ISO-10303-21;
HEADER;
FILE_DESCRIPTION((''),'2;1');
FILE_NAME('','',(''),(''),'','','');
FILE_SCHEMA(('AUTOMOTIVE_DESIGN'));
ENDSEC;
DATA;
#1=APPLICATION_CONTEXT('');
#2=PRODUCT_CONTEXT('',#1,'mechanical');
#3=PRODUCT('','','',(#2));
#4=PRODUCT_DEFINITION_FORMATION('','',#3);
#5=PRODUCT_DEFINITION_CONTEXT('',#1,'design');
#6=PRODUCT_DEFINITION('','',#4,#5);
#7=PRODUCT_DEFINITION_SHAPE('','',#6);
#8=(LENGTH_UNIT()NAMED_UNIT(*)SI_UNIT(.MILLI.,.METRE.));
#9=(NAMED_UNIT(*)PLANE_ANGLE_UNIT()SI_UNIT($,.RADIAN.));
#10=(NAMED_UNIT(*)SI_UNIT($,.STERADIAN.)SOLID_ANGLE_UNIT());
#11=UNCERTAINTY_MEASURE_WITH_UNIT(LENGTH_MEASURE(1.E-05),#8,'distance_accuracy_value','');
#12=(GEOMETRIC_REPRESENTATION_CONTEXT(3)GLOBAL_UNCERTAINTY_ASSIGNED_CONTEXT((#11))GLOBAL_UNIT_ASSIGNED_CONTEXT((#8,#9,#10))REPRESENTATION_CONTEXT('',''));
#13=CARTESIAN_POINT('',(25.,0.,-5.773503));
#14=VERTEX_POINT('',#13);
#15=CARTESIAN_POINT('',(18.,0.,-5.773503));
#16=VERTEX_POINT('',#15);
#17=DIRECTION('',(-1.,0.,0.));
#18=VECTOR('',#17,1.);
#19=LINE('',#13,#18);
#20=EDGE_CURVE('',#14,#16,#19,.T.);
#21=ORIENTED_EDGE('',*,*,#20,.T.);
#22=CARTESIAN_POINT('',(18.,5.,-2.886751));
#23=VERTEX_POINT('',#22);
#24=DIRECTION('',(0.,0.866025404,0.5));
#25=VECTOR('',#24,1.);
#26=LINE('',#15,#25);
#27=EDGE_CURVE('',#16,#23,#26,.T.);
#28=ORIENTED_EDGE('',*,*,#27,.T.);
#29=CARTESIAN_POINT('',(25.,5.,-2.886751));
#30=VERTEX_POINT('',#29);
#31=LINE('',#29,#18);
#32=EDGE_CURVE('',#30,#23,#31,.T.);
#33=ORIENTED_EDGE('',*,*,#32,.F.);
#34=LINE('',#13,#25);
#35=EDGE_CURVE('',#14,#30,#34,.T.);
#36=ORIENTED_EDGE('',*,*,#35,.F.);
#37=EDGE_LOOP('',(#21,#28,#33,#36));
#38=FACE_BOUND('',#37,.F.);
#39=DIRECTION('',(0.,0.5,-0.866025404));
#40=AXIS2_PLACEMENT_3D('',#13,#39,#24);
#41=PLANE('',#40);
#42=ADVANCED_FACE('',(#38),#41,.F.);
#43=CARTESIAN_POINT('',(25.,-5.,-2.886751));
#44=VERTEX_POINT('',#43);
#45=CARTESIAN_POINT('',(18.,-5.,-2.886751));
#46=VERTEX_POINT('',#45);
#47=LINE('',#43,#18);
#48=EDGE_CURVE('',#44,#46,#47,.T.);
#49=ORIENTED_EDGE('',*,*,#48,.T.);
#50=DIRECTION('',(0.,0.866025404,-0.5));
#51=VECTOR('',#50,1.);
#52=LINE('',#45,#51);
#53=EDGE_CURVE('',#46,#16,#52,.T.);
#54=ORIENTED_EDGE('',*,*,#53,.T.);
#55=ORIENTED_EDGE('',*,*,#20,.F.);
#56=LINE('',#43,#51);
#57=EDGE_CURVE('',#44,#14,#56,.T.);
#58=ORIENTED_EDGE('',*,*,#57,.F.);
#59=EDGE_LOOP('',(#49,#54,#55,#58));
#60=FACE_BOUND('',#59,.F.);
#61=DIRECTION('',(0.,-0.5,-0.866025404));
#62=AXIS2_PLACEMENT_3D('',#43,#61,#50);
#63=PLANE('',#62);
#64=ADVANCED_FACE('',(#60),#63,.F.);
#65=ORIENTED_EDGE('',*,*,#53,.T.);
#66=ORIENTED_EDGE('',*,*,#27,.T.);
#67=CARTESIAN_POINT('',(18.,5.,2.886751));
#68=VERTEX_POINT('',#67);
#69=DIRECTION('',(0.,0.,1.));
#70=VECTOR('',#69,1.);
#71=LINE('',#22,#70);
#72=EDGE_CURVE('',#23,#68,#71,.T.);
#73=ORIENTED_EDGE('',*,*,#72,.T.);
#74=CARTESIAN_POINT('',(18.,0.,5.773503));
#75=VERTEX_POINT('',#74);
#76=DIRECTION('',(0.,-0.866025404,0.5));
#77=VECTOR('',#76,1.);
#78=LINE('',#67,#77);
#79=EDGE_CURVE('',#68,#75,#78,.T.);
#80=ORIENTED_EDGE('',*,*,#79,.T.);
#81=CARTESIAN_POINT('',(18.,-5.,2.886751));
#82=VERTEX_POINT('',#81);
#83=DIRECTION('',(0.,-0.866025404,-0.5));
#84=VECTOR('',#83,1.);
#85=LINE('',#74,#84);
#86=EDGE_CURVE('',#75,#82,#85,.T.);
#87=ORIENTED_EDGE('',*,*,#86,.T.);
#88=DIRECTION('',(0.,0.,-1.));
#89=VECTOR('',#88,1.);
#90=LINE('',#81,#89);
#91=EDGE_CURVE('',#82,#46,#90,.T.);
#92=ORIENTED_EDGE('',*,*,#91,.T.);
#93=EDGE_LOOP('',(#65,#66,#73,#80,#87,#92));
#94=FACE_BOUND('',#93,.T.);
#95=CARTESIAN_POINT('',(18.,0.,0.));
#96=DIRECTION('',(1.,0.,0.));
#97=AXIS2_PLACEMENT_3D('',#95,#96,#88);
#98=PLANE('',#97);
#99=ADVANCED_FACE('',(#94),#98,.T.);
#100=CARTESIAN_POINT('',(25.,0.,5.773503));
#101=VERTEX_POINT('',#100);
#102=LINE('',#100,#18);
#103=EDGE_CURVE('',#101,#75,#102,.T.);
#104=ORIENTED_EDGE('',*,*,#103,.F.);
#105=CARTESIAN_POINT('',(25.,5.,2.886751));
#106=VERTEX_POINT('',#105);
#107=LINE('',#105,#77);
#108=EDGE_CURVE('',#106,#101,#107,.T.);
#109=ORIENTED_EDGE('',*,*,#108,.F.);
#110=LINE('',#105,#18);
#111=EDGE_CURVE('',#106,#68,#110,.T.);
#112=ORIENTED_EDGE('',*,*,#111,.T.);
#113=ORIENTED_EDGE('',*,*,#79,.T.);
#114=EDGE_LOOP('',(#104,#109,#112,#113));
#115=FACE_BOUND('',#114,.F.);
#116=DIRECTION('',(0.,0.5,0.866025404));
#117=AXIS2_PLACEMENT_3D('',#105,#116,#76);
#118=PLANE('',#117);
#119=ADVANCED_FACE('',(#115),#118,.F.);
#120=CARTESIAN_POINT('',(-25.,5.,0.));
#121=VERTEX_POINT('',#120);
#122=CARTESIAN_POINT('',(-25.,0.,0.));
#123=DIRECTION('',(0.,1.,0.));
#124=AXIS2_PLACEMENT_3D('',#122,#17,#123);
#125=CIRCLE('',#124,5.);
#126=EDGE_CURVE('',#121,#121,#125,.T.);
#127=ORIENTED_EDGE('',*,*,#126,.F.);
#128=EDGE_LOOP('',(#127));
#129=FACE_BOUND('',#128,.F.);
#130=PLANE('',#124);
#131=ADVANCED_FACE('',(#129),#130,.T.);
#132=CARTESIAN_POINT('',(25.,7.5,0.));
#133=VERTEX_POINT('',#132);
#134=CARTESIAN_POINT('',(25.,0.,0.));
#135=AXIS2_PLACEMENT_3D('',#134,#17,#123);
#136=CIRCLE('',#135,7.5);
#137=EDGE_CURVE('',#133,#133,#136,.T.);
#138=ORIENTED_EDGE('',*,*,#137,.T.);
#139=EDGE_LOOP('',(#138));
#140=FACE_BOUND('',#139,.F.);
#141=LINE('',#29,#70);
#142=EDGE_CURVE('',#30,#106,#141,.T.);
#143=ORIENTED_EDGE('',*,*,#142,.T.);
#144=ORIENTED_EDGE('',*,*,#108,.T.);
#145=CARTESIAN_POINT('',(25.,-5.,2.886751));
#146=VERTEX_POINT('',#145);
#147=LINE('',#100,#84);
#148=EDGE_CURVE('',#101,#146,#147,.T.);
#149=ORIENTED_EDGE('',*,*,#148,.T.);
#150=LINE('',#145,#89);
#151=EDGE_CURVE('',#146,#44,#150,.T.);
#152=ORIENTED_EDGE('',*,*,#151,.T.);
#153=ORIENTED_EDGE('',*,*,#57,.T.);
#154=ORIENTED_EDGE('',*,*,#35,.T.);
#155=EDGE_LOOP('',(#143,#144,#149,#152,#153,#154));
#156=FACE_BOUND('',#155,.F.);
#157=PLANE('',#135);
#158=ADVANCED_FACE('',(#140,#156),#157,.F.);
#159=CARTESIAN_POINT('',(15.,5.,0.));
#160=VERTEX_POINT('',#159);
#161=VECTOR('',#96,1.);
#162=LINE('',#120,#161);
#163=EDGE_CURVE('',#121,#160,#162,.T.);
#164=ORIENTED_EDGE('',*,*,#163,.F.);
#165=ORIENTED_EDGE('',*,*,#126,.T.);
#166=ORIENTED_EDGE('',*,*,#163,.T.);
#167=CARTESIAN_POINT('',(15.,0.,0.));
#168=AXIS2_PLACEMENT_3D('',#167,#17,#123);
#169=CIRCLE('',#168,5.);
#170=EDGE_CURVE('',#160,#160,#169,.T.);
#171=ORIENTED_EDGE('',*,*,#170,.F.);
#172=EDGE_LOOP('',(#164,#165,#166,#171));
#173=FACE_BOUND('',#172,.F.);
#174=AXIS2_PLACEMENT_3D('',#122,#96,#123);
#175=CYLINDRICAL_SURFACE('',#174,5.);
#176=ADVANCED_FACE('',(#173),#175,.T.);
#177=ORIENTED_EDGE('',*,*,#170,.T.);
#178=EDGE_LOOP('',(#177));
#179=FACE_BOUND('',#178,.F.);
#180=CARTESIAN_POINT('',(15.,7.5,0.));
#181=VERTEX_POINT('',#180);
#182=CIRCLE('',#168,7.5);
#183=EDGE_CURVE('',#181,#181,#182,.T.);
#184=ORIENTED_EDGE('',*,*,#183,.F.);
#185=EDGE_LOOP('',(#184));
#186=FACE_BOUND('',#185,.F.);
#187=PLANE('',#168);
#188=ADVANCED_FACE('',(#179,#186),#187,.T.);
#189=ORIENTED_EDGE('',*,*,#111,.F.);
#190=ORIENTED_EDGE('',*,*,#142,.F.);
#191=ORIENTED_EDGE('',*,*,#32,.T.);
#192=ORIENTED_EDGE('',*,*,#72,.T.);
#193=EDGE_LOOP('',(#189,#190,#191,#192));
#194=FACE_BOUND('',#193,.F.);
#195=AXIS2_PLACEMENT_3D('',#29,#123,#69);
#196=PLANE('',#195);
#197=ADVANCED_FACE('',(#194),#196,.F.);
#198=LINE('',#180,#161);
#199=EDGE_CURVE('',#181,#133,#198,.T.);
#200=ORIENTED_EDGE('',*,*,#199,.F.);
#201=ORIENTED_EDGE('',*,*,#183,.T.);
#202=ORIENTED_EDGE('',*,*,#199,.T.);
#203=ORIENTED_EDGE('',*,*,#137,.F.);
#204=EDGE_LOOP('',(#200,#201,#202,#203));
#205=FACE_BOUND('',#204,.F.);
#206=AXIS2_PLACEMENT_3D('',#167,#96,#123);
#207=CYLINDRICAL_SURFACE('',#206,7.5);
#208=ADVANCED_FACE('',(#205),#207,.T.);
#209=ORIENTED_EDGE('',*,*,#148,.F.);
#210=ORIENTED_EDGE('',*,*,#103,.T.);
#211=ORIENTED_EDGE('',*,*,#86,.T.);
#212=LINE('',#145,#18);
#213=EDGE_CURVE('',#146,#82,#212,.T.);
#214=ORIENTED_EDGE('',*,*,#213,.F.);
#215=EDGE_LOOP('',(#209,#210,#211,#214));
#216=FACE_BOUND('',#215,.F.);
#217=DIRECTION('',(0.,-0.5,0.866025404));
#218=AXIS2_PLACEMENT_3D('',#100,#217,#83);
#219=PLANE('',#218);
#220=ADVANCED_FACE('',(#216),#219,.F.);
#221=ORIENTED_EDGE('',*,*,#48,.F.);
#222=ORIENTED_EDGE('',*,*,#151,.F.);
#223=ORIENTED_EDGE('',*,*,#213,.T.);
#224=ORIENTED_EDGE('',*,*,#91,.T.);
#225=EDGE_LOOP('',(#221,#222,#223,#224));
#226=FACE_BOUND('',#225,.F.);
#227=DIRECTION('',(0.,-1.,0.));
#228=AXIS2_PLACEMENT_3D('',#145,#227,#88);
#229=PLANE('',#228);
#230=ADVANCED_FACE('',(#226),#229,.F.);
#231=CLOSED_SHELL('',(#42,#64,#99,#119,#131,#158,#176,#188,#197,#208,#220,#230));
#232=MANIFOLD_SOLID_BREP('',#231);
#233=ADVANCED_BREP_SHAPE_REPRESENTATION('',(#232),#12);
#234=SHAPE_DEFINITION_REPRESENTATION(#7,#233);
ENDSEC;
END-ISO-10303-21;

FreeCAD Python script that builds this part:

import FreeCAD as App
import Part
import Sketcher

V = App.Vector
Q = App.Units.Quantity

doc = App.newDocument("Part")
body = doc.addObject("PartDesign::Body", "Body")

sketch1 = body.newObject("Sketcher::SketchObject", "Sketch")
sketch1.AttachmentSupport = (doc.getObject("XY_Plane"), [""])
sketch1.MapMode = "FlatFace"
sketch1.addGeometry(Part.LineSegment(V(15, 5, 0), V(-25, 5, 0)), False)
sketch1.addGeometry(Part.LineSegment(V(-25, 5, 0), V(-25, 0, 0)), False)
sketch1.addGeometry(Part.LineSegment(V(-25, 0, 0), V(25, 0, 0)), False)
sketch1.addGeometry(Part.LineSegment(V(25, 0, 0), V(25, 7.5, 0)), False)
sketch1.addGeometry(Part.LineSegment(V(25, 7.5, 0), V(15, 7.5, 0)), False)
sketch1.addGeometry(Part.LineSegment(V(15, 7.5, 0), V(15, 5, 0)), False)
sketch1.addConstraint(Sketcher.Constraint("Coincident", 0, 2, 1, 1))
sketch1.addConstraint(Sketcher.Constraint("Coincident", 1, 2, 2, 1))
sketch1.addConstraint(Sketcher.Constraint("Coincident", 2, 2, 3, 1))
sketch1.addConstraint(Sketcher.Constraint("Coincident", 3, 2, 4, 1))
sketch1.addConstraint(Sketcher.Constraint("Coincident", 4, 2, 5, 1))
sketch1.addConstraint(Sketcher.Constraint("Coincident", 5, 2, 0, 1))
sketch1.addConstraint(Sketcher.Constraint("Horizontal", 0))
sketch1.addConstraint(Sketcher.Constraint("Vertical", 1))
sketch1.addConstraint(Sketcher.Constraint("Horizontal", 2))
sketch1.addConstraint(Sketcher.Constraint("Vertical", 3))
sketch1.addConstraint(Sketcher.Constraint("Horizontal", 4))
sketch1.addConstraint(Sketcher.Constraint("Vertical", 5))
sketch1.addConstraint(Sketcher.Constraint("Symmetric", 1, 2, 2, 2, -1, 1))
sketch1.addConstraint(Sketcher.Constraint("DistanceX", 0, 2, 0, 1, 40.0))
sketch1.addConstraint(Sketcher.Constraint("DistanceX", 2, 1, 2, 2, 50.0))
sketch1.addConstraint(Sketcher.Constraint("DistanceY", 1, 2, 1, 1, 5.0))
sketch1.addConstraint(Sketcher.Constraint("DistanceY", 3, 1, 3, 2, 7.5))
revolution = body.newObject("PartDesign::Revolution", "Revolution")
revolution.Profile = sketch1
revolution.ReferenceAxis = (sketch1, ["H_Axis"])
revolution.Angle = 360

sketch2 = body.newObject("Sketcher::SketchObject", "Sketch001")
sketch2.AttachmentSupport = (doc.getObject("YZ_Plane"), [""])
sketch2.MapMode = "FlatFace"
sketch2.AttachmentOffset = App.Placement(V(0, 0, 25), App.Rotation())
sketch2.addGeometry(Part.LineSegment(V(0, -6, 0), V(5, -3, 0)), False)
sketch2.addGeometry(Part.LineSegment(V(5, -3, 0), V(5, 3, 0)), False)
sketch2.addGeometry(Part.LineSegment(V(5, 3, 0), V(0, 6, 0)), False)
sketch2.addGeometry(Part.LineSegment(V(0, 6, 0), V(-5, 3, 0)), False)
sketch2.addGeometry(Part.LineSegment(V(-5, 3, 0), V(-5, -3, 0)), False)
sketch2.addGeometry(Part.LineSegment(V(-5, -3, 0), V(0, -6, 0)), False)
sketch2.addConstraint(Sketcher.Constraint("Coincident", 0, 2, 1, 1))
sketch2.addConstraint(Sketcher.Constraint("Coincident", 1, 2, 2, 1))
sketch2.addConstraint(Sketcher.Constraint("Coincident", 2, 2, 3, 1))
sketch2.addConstraint(Sketcher.Constraint("Coincident", 3, 2, 4, 1))
sketch2.addConstraint(Sketcher.Constraint("Coincident", 4, 2, 5, 1))
sketch2.addConstraint(Sketcher.Constraint("Coincident", 5, 2, 0, 1))
sketch2.addConstraint(Sketcher.Constraint("Vertical", 1))
sketch2.addConstraint(Sketcher.Constraint("Vertical", 4))
sketch2.addConstraint(Sketcher.Constraint("Symmetric", 0, 2, 3, 2, -1, 1))
sketch2.addConstraint(Sketcher.Constraint("Symmetric", 2, 2, 5, 2, -1, 1))
sketch2.addConstraint(Sketcher.Constraint("PointOnObject", 2, 2, -2))
sketch2.addConstraint(Sketcher.Constraint("Parallel", 2, 5))
sketch2.addConstraint(Sketcher.Constraint("Horizontal", 1, 2, 3, 2))
sketch2.addConstraint(Sketcher.Constraint("Angle", 0, Q("30 deg")))
sketch2.addConstraint(Sketcher.Constraint("DistanceX", -1, 1, 0, 2, 5.0))
sketch2.addConstraint(Sketcher.Constraint("DistanceY", 1, 1, 1, 2, 5.773503))
pocket1 = body.newObject("PartDesign::Pocket", "Pocket")
pocket1.Profile = sketch2
pocket1.Length = 7

doc.recompute()
